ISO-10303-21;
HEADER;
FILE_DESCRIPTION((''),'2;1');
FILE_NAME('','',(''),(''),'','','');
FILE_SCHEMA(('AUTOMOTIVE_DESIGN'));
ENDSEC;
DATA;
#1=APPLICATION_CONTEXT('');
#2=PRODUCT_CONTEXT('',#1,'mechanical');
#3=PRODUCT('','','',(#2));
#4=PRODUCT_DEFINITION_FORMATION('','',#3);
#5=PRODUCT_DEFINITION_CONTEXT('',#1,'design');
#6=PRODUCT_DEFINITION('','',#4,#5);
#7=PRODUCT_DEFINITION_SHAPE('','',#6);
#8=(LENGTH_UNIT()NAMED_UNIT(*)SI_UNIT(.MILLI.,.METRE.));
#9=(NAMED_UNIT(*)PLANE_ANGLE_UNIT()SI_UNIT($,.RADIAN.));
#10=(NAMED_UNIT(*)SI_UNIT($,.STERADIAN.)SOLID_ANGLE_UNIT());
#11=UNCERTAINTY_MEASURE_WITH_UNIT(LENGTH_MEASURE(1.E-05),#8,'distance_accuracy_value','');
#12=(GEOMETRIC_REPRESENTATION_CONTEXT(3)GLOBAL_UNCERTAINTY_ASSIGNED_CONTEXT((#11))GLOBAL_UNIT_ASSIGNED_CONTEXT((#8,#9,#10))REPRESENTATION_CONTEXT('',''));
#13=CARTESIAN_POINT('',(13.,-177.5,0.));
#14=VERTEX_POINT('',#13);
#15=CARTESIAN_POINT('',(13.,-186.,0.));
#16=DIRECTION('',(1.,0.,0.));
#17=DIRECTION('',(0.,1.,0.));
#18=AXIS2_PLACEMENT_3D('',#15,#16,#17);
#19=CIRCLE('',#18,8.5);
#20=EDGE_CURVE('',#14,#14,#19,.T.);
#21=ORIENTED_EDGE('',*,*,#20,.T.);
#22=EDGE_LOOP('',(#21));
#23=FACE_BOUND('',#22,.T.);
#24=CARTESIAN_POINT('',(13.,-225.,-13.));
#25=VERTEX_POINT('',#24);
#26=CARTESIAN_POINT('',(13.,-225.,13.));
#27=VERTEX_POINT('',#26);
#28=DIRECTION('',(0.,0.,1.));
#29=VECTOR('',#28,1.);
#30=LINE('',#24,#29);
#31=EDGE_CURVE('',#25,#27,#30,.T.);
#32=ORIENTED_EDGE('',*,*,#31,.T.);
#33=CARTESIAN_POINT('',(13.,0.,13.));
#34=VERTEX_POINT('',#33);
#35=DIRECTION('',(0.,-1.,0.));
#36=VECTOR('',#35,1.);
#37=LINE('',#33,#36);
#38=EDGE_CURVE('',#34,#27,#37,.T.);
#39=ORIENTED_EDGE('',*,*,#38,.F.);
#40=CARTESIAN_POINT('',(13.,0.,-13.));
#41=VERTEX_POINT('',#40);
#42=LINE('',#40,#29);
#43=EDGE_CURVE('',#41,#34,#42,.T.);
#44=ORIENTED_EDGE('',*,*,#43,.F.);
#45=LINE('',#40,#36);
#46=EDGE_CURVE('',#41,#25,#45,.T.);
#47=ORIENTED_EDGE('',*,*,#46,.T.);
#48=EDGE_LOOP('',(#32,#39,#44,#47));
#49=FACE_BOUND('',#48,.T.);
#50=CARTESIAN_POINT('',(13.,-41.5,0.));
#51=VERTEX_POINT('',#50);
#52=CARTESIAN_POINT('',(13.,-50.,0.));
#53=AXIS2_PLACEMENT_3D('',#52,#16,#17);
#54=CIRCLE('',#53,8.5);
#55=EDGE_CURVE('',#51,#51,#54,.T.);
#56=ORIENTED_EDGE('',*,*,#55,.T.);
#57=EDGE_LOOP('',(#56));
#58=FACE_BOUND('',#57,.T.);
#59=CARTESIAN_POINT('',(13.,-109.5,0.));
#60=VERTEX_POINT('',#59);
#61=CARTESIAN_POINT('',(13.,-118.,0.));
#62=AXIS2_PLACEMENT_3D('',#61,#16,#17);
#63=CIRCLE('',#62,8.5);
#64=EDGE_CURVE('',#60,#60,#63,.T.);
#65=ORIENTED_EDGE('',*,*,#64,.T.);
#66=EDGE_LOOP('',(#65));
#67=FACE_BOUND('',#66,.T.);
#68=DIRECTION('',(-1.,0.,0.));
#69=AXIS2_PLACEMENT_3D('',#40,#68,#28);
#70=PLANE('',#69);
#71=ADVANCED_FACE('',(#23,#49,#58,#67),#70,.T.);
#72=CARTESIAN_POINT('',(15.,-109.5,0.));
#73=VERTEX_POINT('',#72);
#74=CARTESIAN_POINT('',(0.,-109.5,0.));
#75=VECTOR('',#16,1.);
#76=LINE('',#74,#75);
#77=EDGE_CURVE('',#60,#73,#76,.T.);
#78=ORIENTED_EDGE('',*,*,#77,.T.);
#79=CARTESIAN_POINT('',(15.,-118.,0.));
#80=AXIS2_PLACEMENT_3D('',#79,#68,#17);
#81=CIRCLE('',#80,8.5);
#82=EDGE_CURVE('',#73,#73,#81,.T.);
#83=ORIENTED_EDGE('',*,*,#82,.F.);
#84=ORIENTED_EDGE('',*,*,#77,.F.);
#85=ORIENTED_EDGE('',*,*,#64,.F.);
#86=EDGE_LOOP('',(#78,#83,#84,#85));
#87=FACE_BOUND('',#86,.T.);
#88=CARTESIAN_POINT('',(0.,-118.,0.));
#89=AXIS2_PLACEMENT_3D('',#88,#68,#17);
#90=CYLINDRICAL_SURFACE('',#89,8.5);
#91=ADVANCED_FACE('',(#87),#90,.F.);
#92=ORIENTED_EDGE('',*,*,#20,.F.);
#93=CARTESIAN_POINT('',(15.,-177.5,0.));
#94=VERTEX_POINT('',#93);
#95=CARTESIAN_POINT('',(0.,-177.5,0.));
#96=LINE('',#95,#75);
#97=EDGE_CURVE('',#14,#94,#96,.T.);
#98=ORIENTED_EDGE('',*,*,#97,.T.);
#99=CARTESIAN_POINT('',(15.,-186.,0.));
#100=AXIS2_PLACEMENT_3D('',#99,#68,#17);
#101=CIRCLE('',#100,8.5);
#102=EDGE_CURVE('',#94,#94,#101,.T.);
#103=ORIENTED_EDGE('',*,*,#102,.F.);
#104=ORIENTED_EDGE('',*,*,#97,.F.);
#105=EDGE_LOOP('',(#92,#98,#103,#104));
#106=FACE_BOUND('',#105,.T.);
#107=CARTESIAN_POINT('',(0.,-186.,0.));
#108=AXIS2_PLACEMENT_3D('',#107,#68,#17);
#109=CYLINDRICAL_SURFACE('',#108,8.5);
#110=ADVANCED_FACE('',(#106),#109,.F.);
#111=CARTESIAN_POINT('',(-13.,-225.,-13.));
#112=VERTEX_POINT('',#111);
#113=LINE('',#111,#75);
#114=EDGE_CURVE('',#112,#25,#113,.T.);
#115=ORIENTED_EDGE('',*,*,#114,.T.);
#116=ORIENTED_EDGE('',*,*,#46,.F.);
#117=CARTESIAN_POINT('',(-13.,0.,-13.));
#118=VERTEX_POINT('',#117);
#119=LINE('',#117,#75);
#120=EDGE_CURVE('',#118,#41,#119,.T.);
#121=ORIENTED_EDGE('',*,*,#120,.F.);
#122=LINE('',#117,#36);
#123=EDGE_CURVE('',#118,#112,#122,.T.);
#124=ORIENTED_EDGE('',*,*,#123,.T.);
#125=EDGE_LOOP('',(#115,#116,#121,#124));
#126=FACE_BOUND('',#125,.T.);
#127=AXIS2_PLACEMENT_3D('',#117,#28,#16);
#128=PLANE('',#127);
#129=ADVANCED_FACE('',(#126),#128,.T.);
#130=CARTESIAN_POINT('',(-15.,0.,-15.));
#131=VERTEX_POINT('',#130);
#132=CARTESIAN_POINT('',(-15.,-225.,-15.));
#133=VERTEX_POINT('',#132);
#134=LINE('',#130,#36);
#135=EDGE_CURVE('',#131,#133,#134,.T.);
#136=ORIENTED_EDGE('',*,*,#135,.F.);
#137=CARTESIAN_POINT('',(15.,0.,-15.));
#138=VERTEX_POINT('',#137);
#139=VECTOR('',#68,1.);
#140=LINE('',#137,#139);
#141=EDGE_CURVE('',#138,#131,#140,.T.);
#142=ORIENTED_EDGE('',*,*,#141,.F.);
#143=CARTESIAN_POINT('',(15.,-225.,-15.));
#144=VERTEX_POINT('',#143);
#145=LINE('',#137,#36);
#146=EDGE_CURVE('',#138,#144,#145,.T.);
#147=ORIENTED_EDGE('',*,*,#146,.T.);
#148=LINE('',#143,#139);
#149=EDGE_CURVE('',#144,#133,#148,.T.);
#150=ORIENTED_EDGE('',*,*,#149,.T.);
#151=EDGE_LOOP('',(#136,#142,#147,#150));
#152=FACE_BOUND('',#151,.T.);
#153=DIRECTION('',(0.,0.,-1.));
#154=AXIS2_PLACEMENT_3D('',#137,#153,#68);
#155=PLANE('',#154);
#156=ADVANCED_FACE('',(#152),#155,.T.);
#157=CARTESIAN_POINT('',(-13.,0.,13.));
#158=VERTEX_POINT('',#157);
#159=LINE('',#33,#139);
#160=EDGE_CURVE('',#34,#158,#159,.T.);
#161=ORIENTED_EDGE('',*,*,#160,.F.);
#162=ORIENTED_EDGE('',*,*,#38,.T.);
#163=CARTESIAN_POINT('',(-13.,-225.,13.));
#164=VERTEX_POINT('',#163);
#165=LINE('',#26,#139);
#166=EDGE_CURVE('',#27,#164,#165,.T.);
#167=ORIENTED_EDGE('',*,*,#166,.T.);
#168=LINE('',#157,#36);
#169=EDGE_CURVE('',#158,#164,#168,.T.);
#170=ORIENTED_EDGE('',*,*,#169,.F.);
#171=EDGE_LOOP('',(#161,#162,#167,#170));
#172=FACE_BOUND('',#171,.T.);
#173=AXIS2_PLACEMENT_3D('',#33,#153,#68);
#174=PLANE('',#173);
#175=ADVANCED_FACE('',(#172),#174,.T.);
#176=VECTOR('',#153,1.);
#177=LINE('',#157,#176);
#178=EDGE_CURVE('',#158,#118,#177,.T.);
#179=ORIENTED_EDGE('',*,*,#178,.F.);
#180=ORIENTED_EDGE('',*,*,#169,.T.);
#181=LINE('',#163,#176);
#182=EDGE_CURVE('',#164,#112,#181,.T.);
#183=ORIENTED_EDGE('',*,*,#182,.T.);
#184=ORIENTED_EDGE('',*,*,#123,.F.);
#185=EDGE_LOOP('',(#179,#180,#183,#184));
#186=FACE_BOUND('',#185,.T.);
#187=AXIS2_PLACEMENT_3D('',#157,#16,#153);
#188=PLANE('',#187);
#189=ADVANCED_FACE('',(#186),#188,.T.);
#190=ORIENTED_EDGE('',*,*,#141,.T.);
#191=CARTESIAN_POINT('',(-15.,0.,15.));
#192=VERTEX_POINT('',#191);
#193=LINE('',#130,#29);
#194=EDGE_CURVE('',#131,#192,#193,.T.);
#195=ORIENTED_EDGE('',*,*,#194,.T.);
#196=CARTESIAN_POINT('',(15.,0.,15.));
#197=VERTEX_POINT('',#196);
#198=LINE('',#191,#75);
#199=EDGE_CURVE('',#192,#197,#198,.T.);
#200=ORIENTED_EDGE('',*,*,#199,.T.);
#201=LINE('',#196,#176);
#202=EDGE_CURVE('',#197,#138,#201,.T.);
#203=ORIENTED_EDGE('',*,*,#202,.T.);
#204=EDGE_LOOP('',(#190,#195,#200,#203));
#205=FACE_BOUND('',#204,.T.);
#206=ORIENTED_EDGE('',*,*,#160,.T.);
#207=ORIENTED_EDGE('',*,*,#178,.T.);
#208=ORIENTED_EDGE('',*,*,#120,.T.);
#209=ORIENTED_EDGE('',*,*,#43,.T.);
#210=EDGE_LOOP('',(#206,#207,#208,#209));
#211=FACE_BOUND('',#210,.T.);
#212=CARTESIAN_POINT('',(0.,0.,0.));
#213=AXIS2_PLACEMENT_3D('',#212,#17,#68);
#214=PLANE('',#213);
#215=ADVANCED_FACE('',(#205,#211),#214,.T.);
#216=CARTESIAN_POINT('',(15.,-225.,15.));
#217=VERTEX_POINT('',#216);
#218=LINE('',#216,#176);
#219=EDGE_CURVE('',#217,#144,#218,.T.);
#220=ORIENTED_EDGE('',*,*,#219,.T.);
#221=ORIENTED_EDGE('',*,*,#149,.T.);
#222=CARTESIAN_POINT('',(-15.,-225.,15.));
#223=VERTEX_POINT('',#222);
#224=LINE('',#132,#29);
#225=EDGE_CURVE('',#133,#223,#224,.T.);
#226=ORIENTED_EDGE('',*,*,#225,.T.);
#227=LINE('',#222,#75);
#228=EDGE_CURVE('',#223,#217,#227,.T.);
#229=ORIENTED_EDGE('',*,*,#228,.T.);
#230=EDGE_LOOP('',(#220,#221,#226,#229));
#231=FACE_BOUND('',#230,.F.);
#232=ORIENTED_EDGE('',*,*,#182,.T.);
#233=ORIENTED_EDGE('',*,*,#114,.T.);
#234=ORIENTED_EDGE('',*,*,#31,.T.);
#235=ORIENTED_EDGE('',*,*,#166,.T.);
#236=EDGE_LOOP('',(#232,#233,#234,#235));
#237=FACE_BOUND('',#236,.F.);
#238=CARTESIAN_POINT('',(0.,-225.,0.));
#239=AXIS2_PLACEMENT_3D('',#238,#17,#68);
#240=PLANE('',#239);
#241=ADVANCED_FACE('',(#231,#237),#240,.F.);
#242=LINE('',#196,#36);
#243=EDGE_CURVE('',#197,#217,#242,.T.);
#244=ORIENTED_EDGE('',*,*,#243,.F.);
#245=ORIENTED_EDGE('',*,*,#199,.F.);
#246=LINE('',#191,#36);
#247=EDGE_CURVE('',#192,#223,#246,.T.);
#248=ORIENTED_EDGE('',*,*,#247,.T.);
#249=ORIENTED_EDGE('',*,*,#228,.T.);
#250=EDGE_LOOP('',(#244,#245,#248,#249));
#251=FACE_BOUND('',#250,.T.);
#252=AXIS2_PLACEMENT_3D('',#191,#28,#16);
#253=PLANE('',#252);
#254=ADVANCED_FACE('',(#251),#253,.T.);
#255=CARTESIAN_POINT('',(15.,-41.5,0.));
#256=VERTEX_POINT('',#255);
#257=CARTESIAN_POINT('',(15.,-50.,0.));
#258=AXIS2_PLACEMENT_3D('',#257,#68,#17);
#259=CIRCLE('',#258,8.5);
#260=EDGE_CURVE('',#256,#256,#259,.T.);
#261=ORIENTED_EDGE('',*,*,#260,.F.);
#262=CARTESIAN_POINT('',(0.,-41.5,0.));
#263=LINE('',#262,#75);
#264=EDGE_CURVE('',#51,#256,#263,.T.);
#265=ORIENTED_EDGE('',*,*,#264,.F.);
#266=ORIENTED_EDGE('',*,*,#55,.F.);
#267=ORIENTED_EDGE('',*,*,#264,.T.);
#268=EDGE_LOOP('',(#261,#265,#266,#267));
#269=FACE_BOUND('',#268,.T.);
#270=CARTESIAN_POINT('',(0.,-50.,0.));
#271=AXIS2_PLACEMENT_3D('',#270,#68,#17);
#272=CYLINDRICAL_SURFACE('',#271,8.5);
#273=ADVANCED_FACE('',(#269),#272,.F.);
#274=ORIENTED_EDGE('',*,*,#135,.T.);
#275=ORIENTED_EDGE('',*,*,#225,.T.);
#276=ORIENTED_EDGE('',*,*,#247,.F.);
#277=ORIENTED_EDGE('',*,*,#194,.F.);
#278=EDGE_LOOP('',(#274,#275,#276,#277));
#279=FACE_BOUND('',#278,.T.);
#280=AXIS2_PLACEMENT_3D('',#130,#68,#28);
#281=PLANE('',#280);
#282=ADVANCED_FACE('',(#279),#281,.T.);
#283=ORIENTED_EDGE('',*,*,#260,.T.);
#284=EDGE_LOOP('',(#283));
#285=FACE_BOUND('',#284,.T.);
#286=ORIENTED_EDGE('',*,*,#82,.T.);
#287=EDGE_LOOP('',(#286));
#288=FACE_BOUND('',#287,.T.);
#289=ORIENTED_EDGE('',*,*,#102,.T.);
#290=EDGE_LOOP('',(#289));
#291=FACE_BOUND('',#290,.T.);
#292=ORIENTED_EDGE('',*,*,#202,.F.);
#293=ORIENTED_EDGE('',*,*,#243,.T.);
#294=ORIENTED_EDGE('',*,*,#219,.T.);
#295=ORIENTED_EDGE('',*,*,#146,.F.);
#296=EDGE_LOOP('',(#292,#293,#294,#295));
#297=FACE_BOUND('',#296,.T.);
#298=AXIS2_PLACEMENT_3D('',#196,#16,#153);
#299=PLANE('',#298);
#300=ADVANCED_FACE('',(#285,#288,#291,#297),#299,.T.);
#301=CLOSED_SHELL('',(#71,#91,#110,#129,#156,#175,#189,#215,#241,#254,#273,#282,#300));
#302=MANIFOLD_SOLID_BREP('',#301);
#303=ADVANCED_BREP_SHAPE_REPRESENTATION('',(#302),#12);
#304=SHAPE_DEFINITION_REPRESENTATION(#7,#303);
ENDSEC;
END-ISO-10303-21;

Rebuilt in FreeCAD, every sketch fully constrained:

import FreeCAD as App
import Part
import Sketcher

doc = App.newDocument("Part")
params = doc.addObject("Spreadsheet::Sheet", "Params")
for row, (alias, value) in enumerate([
    ("sketch1_width", "30 mm"),
    ("pad1_length", "225 mm"),
    ("sketch2_diameter", "17 mm"),
    ("linearpattern_pitch", "68 mm"),
], start=1):
    params.set(f"A{row}", alias)
    params.set(f"B{row}", "=" + value)
    params.setAlias(f"B{row}", alias)

body = doc.addObject("PartDesign::Body", "Body")

# Sketch on XZ plane
sketch1 = body.newObject("Sketcher::SketchObject", "Sketch")
sketch1.AttachmentSupport = (doc.getObject("XZ_Plane"), [""])
sketch1.MapMode = "FlatFace"
sketch1.addGeometry(Part.LineSegment(App.Vector(-15, -15, 0), App.Vector(-15, 15, 0)), False)
sketch1.addGeometry(Part.LineSegment(App.Vector(-15, 15, 0), App.Vector(15, 15, 0)), False)
sketch1.addGeometry(Part.LineSegment(App.Vector(15, 15, 0), App.Vector(15, -15, 0)), False)
sketch1.addGeometry(Part.LineSegment(App.Vector(15, -15, 0), App.Vector(-15, -15, 0)), False)
sketch1.addGeometry(Part.LineSegment(App.Vector(13, -13, 0), App.Vector(13, 13, 0)), False)
sketch1.addGeometry(Part.LineSegment(App.Vector(13, 13, 0), App.Vector(-13, 13, 0)), False)
sketch1.addGeometry(Part.LineSegment(App.Vector(-13, 13, 0), App.Vector(-13, -13, 0)), False)
sketch1.addGeometry(Part.LineSegment(App.Vector(-13, -13, 0), App.Vector(13, -13, 0)), False)
sketch1.addConstraint(Sketcher.Constraint("Coincident", 0, 2, 1, 1))
sketch1.addConstraint(Sketcher.Constraint("Coincident", 1, 2, 2, 1))
sketch1.addConstraint(Sketcher.Constraint("Coincident", 2, 2, 3, 1))
sketch1.addConstraint(Sketcher.Constraint("Coincident", 3, 2, 0, 1))
sketch1.addConstraint(Sketcher.Constraint("Coincident", 4, 2, 5, 1))
sketch1.addConstraint(Sketcher.Constraint("Coincident", 5, 2, 6, 1))
sketch1.addConstraint(Sketcher.Constraint("Coincident", 6, 2, 7, 1))
sketch1.addConstraint(Sketcher.Constraint("Coincident", 7, 2, 4, 1))
sketch1.addConstraint(Sketcher.Constraint("Vertical", 0))
sketch1.addConstraint(Sketcher.Constraint("Horizontal", 1))
sketch1.addConstraint(Sketcher.Constraint("Vertical", 2))
sketch1.addConstraint(Sketcher.Constraint("Horizontal", 3))
sketch1.addConstraint(Sketcher.Constraint("Vertical", 4))
sketch1.addConstraint(Sketcher.Constraint("Horizontal", 5))
sketch1.addConstraint(Sketcher.Constraint("Vertical", 6))
sketch1.addConstraint(Sketcher.Constraint("Horizontal", 7))
sketch1.addConstraint(Sketcher.Constraint("Symmetric", 0, 2, 2, 2, -1, 1))
sketch1.addConstraint(Sketcher.Constraint("Symmetric", 4, 2, 6, 2, -1, 1))
sketch1.addConstraint(Sketcher.Constraint("Equal", 3, 0))
sketch1.addConstraint(Sketcher.Constraint("Equal", 7, 4))
sketch1.addConstraint(Sketcher.Constraint("DistanceX", 1, 1, 1, 2, 30.0))
sketch1.addConstraint(Sketcher.Constraint("DistanceX", 4, 2, 1, 2, 2.0))
sketch1.setExpression("Constraints[20]", "Params.sketch1_width")
pad1 = body.newObject("PartDesign::Pad", "Pad")
pad1.Profile = sketch1
pad1.setExpression("Length", "Params.pad1_length")

# Sketch on YZ plane
sketch2 = body.newObject("Sketcher::SketchObject", "Sketch001")
sketch2.AttachmentSupport = (doc.getObject("YZ_Plane"), [""])
sketch2.MapMode = "FlatFace"
sketch2.addGeometry(Part.Circle(App.Vector(-50, 0, 0), App.Vector(0, 0, 1), 8), False)
sketch2.addConstraint(Sketcher.Constraint("PointOnObject", 0, 3, -1))
sketch2.addConstraint(Sketcher.Constraint("Diameter", 0, 17.0))
sketch2.addConstraint(Sketcher.Constraint("DistanceX", 0, 3, -1, 1, 50.0))
sketch2.setExpression("Constraints[1]", "Params.sketch2_diameter")
pocket1 = body.newObject("PartDesign::Pocket", "Pocket")
pocket1.Profile = sketch2
pocket1.Type = "ThroughAll"
pocket1.Reversed = True
doc.recompute()

linearpattern = body.newObject("PartDesign::LinearPattern", "LinearPattern")
linearpattern.Originals = [pocket1]
linearpattern.Direction = (doc.getObject("Y_Axis"), [""])
linearpattern.Mode = "offset"
linearpattern.setExpression("Offset", "Params.linearpattern_pitch")
linearpattern.Occurrences = 4
linearpattern.Reversed = True
body.Tip = linearpattern

doc.recompute()
